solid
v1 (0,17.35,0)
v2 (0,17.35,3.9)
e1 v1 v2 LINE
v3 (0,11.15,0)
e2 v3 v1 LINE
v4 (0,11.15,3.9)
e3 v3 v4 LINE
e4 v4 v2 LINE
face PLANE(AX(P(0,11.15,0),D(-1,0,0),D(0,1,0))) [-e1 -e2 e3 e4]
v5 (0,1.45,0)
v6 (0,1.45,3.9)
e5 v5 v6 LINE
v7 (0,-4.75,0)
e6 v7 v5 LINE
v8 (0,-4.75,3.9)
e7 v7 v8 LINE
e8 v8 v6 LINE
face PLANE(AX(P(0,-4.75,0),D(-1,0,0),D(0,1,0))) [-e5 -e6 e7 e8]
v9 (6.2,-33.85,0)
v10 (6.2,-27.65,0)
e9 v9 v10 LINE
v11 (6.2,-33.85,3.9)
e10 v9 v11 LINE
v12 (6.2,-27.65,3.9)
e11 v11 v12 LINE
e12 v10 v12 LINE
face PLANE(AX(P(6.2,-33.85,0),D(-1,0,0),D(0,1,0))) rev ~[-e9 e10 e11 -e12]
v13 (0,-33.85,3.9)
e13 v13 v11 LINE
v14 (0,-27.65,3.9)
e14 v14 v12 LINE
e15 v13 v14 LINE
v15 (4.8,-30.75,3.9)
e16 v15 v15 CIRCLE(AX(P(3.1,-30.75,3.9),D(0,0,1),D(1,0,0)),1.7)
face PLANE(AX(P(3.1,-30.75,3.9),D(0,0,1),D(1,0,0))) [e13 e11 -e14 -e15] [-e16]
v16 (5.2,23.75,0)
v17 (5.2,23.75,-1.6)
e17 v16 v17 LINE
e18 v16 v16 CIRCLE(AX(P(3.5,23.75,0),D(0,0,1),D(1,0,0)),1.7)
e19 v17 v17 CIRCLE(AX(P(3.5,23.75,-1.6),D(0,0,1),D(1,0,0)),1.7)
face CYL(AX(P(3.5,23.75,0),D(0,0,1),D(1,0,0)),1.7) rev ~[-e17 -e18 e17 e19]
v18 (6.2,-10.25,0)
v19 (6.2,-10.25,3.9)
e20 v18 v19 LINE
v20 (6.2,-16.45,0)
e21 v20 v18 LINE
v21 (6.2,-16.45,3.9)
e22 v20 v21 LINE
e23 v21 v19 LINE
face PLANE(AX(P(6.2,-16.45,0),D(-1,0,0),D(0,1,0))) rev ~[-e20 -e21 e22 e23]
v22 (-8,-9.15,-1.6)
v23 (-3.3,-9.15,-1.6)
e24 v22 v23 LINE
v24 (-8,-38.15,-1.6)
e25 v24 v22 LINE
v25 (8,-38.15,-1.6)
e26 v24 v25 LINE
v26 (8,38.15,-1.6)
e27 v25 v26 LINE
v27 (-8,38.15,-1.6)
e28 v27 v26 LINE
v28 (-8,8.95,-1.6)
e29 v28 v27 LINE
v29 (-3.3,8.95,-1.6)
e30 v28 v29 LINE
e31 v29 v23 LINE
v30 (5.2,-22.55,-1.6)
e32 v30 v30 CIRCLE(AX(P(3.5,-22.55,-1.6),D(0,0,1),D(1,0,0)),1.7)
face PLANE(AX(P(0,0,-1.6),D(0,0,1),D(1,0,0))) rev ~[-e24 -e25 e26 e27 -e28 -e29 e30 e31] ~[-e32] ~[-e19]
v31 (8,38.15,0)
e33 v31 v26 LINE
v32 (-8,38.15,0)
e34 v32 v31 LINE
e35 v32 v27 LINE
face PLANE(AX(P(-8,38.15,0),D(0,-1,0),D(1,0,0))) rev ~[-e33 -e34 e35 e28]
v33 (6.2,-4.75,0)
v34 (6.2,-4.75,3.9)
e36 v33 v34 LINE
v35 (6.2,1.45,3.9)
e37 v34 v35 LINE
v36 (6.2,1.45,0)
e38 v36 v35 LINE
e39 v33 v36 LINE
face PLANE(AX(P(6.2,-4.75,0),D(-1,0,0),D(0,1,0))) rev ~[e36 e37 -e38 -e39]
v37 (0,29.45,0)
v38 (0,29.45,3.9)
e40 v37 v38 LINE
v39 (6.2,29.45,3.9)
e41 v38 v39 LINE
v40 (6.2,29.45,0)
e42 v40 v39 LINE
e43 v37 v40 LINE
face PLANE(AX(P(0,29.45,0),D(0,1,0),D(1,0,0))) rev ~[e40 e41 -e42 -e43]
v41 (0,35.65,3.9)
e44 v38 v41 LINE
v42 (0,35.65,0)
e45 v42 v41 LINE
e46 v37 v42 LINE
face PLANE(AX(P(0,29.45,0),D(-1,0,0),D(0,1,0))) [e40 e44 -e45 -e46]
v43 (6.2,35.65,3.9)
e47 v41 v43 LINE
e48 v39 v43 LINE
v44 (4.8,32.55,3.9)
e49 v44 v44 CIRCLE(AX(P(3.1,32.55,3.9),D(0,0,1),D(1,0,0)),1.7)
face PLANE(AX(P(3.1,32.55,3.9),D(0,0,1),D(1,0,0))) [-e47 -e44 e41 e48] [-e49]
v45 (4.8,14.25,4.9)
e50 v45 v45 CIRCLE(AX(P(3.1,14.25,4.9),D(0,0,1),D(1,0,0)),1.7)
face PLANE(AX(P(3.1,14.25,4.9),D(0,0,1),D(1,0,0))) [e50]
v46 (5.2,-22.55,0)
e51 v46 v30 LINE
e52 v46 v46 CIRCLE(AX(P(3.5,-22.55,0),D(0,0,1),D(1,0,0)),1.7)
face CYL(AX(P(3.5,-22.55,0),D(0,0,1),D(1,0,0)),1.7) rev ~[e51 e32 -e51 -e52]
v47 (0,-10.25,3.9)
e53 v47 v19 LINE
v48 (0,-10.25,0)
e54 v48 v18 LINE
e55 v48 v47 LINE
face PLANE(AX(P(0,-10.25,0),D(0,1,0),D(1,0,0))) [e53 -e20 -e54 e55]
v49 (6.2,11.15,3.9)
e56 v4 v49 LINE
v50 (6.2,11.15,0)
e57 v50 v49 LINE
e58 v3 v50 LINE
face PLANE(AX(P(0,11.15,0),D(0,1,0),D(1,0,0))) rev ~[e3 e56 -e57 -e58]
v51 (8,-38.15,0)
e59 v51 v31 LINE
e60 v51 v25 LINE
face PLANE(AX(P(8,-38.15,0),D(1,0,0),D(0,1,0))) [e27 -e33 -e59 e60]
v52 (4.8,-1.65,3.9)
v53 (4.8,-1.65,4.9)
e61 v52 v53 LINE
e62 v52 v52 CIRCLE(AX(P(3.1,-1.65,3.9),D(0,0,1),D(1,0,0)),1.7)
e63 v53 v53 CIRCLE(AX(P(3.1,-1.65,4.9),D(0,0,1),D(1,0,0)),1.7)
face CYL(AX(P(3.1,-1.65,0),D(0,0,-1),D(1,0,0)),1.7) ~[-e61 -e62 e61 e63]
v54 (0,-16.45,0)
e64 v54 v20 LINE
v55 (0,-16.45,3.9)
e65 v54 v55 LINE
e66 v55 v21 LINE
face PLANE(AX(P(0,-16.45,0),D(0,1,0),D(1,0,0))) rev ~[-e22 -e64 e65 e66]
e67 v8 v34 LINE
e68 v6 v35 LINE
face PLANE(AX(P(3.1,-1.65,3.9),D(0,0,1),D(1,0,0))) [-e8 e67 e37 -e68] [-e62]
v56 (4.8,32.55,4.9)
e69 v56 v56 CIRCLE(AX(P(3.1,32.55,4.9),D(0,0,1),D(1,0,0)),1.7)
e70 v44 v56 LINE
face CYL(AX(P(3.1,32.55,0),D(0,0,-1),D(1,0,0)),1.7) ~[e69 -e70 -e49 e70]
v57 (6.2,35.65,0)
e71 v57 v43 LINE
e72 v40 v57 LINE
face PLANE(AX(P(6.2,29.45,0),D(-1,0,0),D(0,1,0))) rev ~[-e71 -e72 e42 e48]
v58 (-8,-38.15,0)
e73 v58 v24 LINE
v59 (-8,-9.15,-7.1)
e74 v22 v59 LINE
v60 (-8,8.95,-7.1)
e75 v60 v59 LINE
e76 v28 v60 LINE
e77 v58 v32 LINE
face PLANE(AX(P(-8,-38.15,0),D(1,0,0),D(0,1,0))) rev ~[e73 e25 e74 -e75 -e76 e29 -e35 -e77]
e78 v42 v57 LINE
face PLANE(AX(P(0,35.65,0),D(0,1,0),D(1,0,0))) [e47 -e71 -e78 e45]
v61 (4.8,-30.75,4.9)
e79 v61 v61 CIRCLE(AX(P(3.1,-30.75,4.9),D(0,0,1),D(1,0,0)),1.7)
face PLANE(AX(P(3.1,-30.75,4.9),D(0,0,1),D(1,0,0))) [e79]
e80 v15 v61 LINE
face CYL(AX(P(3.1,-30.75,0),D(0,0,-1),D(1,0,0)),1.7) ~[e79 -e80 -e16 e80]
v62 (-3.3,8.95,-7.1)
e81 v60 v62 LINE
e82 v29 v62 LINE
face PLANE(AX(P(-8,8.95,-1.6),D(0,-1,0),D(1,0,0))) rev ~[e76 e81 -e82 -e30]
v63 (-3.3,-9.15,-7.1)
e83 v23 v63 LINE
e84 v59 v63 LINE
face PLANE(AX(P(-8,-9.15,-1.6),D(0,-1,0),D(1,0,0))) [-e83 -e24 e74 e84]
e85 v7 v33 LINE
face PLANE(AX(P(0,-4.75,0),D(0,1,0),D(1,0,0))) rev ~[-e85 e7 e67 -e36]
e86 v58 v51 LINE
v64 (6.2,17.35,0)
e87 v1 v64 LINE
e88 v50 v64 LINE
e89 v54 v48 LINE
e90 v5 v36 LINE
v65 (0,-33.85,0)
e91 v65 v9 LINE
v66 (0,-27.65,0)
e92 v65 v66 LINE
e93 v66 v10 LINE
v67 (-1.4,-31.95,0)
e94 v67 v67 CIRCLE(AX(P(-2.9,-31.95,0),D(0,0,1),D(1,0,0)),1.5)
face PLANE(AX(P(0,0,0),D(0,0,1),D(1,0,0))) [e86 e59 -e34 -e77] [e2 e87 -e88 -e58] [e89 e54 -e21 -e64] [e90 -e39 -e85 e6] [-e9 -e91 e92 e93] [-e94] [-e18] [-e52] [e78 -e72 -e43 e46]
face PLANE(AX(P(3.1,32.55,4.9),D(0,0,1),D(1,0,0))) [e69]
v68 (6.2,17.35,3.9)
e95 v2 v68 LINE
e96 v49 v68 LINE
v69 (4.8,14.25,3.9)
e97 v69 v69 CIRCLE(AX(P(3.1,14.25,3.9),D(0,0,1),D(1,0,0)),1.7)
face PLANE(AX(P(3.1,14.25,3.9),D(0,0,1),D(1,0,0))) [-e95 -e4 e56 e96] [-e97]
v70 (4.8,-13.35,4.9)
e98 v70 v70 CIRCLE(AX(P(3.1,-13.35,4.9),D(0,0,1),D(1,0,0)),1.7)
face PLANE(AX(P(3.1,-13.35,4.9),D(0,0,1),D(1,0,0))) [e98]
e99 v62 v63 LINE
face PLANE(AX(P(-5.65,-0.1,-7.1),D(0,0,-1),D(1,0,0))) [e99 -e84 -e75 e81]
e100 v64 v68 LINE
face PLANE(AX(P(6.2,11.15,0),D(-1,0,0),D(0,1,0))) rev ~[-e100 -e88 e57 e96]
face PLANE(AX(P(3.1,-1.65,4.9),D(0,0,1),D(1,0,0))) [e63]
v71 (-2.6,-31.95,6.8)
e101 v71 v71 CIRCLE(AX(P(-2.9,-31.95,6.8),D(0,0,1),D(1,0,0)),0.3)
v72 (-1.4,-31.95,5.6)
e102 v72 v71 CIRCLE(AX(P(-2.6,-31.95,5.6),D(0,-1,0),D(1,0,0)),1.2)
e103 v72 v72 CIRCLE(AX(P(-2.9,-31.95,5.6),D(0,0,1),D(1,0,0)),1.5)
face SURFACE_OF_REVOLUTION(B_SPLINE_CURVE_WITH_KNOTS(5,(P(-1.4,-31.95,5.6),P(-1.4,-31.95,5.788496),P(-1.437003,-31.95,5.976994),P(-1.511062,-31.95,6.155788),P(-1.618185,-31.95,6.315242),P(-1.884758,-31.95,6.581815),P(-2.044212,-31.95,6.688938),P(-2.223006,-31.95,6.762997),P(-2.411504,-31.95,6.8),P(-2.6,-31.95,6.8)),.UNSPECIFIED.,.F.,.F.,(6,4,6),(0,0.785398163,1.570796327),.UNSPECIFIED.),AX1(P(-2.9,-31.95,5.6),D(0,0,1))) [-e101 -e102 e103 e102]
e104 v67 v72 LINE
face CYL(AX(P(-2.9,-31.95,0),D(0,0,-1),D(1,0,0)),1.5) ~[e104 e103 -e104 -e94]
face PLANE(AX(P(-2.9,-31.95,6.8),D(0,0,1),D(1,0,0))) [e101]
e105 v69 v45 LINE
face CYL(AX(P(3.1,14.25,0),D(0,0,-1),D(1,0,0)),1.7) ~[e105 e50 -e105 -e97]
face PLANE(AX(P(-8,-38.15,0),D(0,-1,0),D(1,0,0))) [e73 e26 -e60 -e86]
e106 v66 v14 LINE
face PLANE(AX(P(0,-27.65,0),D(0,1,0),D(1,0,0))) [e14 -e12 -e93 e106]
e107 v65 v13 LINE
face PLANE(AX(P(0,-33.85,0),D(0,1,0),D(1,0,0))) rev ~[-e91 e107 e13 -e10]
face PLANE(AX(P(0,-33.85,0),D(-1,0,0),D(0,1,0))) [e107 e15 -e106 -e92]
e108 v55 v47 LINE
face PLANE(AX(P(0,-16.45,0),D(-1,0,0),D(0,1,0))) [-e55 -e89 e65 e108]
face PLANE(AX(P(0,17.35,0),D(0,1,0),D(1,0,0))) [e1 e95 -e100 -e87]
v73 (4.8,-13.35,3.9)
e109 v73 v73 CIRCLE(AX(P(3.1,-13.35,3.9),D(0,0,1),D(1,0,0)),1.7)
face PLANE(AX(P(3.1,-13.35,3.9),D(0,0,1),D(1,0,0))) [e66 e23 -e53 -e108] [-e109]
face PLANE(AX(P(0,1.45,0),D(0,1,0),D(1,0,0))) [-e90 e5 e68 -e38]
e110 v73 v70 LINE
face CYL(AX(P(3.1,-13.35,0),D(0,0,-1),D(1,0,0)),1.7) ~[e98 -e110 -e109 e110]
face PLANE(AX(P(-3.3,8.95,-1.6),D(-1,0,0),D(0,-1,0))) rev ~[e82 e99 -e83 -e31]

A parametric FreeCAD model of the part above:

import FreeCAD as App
import Part
import Sketcher

V = App.Vector


def edges_at(feature, points):
    """Names of the edges that pass closest to the given points."""
    edges = feature.Shape.Edges
    near = lambda p: min(range(len(edges)), key=lambda i: edges[i].distToShape(Part.Vertex(*p))[0])
    return sorted({f"Edge{near(p) + 1}" for p in points})

doc = App.newDocument("Part")
params = doc.addObject("Spreadsheet::Sheet", "Params")
for row, (alias, value) in enumerate([
    ("sketch1_diameter", "3.4 mm"),
    ("sketch1_width", "16 mm"),
    ("sketch1_height", "76.3 mm"),
    ("pad1_length", "1.6 mm"),
    ("sketch2_diameter", "3.4 mm"),
    ("sketch2_width", "6.2 mm"),
    ("pad2_length", "3.9 mm"),
    ("sketch3_diameter", "3.4 mm"),
    ("pad3_length", "4.9 mm"),
    ("sketch4_diameter", "3 mm"),
    ("pad4_length", "6.8 mm"),
    ("fillet_radius", "1.2 mm"),
    ("sketch5_width", "4.7 mm"),
    ("sketch5_height", "18.1 mm"),
    ("pad5_length", "5.5 mm"),
], start=1):
    params.set(f"A{row}", alias)
    params.set(f"B{row}", "=" + value)
    params.setAlias(f"B{row}", alias)

body = doc.addObject("PartDesign::Body", "Body")

sketch1 = body.newObject("Sketcher::SketchObject", "Sketch")
sketch1.AttachmentSupport = (doc.getObject("XY_Plane"), [""])
sketch1.MapMode = "FlatFace"
sketch1.addGeometry([
    Part.LineSegment(V(-8, 38.15, 0), V(-8, -38.15, 0)),
    Part.LineSegment(V(-8, -38.15, 0), V(8, -38.15, 0)),
    Part.LineSegment(V(8, -38.15, 0), V(8, 38.15, 0)),
    Part.LineSegment(V(8, 38.15, 0), V(-8, 38.15, 0)),
    Part.Circle(V(3.5, -22.55, 0), V(0, 0, 1), 1.7),
    Part.Circle(V(3.5, 23.75, 0), V(0, 0, 1), 1.7),
], False)
sketch1.addConstraint([
    Sketcher.Constraint("Coincident", 0, 2, 1, 1),
    Sketcher.Constraint("Coincident", 1, 2, 2, 1),
    Sketcher.Constraint("Coincident", 2, 2, 3, 1),
    Sketcher.Constraint("Coincident", 3, 2, 0, 1),
    Sketcher.Constraint("Vertical", 0),
    Sketcher.Constraint("Horizontal", 1),
    Sketcher.Constraint("Vertical", 2),
    Sketcher.Constraint("Horizontal", 3),
    Sketcher.Constraint("Equal", 4, 5),
    Sketcher.Constraint("Symmetric", 0, 2, 2, 2, -1, 1),
    Sketcher.Constraint("Vertical", 4, 3, 5, 3),
    Sketcher.Constraint("Diameter", 4, 3.4),
    Sketcher.Constraint("DistanceX", 1, 1, 1, 2, 16.0),
    Sketcher.Constraint("DistanceY", 0, 2, 0, 1, 76.3),
    Sketcher.Constraint("DistanceX", -1, 1, 4, 3, 3.5),
    Sketcher.Constraint("DistanceY", 4, 3, 5, 3, 46.3),
    Sketcher.Constraint("DistanceY", 0, 2, 4, 3, 15.6),
])
sketch1.setExpression("Constraints[11]", "Params.sketch1_diameter")
sketch1.setExpression("Constraints[12]", "Params.sketch1_width")
sketch1.setExpression("Constraints[13]", "Params.sketch1_height")
pad1 = body.newObject("PartDesign::Pad", "Pad")
pad1.Profile = sketch1
pad1.setExpression("Length", "Params.pad1_length")
pad1.Reversed = True

sketch2 = body.newObject("Sketcher::SketchObject", "Sketch001")
sketch2.AttachmentSupport = (doc.getObject("XY_Plane"), [""])
sketch2.MapMode = "FlatFace"
sketch2.addGeometry([
    Part.LineSegment(V(0, -27.65, 0), V(0, -33.85, 0)),
    Part.LineSegment(V(0, -33.85, 0), V(6.2, -33.85, 0)),
    Part.LineSegment(V(6.2, -33.85, 0), V(6.2, -27.65, 0)),
    Part.LineSegment(V(6.2, -27.65, 0), V(0, -27.65, 0)),
    Part.Circle(V(3.1, -30.75, 0), V(0, 0, 1), 1.7),
    Part.LineSegment(V(0, -10.25, 0), V(0, -16.45, 0)),
    Part.LineSegment(V(0, -16.45, 0), V(6.2, -16.45, 0)),
    Part.LineSegment(V(6.2, -16.45, 0), V(6.2, -10.25, 0)),
    Part.LineSegment(V(6.2, -10.25, 0), V(0, -10.25, 0)),
    Part.Circle(V(3.1, -13.35, 0), V(0, 0, 1), 1.7),
    Part.LineSegment(V(0, 1.45, 0), V(0, -4.75, 0)),
    Part.LineSegment(V(0, -4.75, 0), V(6.2, -4.75, 0)),
    Part.LineSegment(V(6.2, -4.75, 0), V(6.2, 1.45, 0)),
    Part.LineSegment(V(6.2, 1.45, 0), V(0, 1.45, 0)),
    Part.Circle(V(3.1, -1.65, 0), V(0, 0, 1), 1.7),
    Part.LineSegment(V(0, 17.35, 0), V(0, 11.15, 0)),
    Part.LineSegment(V(0, 11.15, 0), V(6.2, 11.15, 0)),
    Part.LineSegment(V(6.2, 11.15, 0), V(6.2, 17.35, 0)),
    Part.LineSegment(V(6.2, 17.35, 0), V(0, 17.35, 0)),
    Part.Circle(V(3.1, 14.25, 0), V(0, 0, 1), 1.7),
    Part.LineSegment(V(0, 35.65, 0), V(0, 29.45, 0)),
    Part.LineSegment(V(0, 29.45, 0), V(6.2, 29.45, 0)),
    Part.LineSegment(V(6.2, 29.45, 0), V(6.2, 35.65, 0)),
    Part.LineSegment(V(6.2, 35.65, 0), V(0, 35.65, 0)),
    Part.Circle(V(3.1, 32.55, 0), V(0, 0, 1), 1.7),
], False)
sketch2.addConstraint([
    Sketcher.Constraint("Coincident", 0, 2, 1, 1),
    Sketcher.Constraint("Coincident", 1, 2, 2, 1),
    Sketcher.Constraint("Coincident", 2, 2, 3, 1),
    Sketcher.Constraint("Coincident", 3, 2, 0, 1),
    Sketcher.Constraint("Coincident", 5, 2, 6, 1),
    Sketcher.Constraint("Coincident", 6, 2, 7, 1),
    Sketcher.Constraint("Coincident", 7, 2, 8, 1),
    Sketcher.Constraint("Coincident", 8, 2, 5, 1),
    Sketcher.Constraint("Coincident", 10, 2, 11, 1),
    Sketcher.Constraint("Coincident", 11, 2, 12, 1),
    Sketcher.Constraint("Coincident", 12, 2, 13, 1),
    Sketcher.Constraint("Coincident", 13, 2, 10, 1),
    Sketcher.Constraint("Coincident", 15, 2, 16, 1),
    Sketcher.Constraint("Coincident", 16, 2, 17, 1),
    Sketcher.Constraint("Coincident", 17, 2, 18, 1),
    Sketcher.Constraint("Coincident", 18, 2, 15, 1),
    Sketcher.Constraint("Coincident", 20, 2, 21, 1),
    Sketcher.Constraint("Coincident", 21, 2, 22, 1),
    Sketcher.Constraint("Coincident", 22, 2, 23, 1),
    Sketcher.Constraint("Coincident", 23, 2, 20, 1),
    Sketcher.Constraint("Vertical", 0),
    Sketcher.Constraint("Horizontal", 1),
    Sketcher.Constraint("Vertical", 2),
    Sketcher.Constraint("Horizontal", 3),
    Sketcher.Constraint("Vertical", 5),
    Sketcher.Constraint("Horizontal", 6),
    Sketcher.Constraint("Vertical", 7),
    Sketcher.Constraint("Horizontal", 8),
    Sketcher.Constraint("Vertical", 10),
    Sketcher.Constraint("Horizontal", 11),
    Sketcher.Constraint("Vertical", 12),
    Sketcher.Constraint("Horizontal", 13),
    Sketcher.Constraint("Vertical", 15),
    Sketcher.Constraint("Horizontal", 16),
    Sketcher.Constraint("Vertical", 17),
    Sketcher.Constraint("Horizontal", 18),
    Sketcher.Constraint("Vertical", 20),
    Sketcher.Constraint("Horizontal", 21),
    Sketcher.Constraint("Vertical", 22),
    Sketcher.Constraint("Horizontal", 23),
    Sketcher.Constraint("Equal", 4, 9),
    Sketcher.Constraint("Equal", 9, 14),
    Sketcher.Constraint("Equal", 14, 19),
    Sketcher.Constraint("Equal", 19, 24),
    Sketcher.Constraint("PointOnObject", 0, 2, -2),
    Sketcher.Constraint("PointOnObject", 5, 2, -2),
    Sketcher.Constraint("PointOnObject", 10, 2, -2),
    Sketcher.Constraint("PointOnObject", 15, 2, -2),
    Sketcher.Constraint("PointOnObject", 20, 2, -2),
    Sketcher.Constraint("Vertical", 4, 3, 9, 3),
    Sketcher.Constraint("Vertical", 9, 3, 14, 3),
    Sketcher.Constraint("Vertical", 14, 3, 19, 3),
    Sketcher.Constraint("Vertical", 19, 3, 24, 3),
    Sketcher.Constraint("Vertical", 2, 2, 6, 2),
    Sketcher.Constraint("Vertical", 7, 2, 11, 2),
    Sketcher.Constraint("Vertical", 12, 2, 16, 2),
    Sketcher.Constraint("Vertical", 17, 2, 21, 2),
    Sketcher.Constraint("Equal", 23, 0),
    Sketcher.Constraint("Equal", 2, 5),
    Sketcher.Constraint("Equal", 7, 10),
    Sketcher.Constraint("Equal", 12, 15),
    Sketcher.Constraint("Equal", 17, 20),
    Sketcher.Constraint("Diameter", 4, 3.4),
    Sketcher.Constraint("DistanceX", 1, 1, 1, 2, 6.2),
    Sketcher.Constraint("DistanceY", 4, 3, 19, 3, 45.0),
    Sketcher.Constraint("DistanceY", 2, 2, 14, 3, 26.0),
    Sketcher.Constraint("DistanceX", -1, 1, 4, 3, 3.1),
    Sketcher.Constraint("DistanceY", 4, 3, 9, 3, 17.4),
    Sketcher.Constraint("DistanceY", 9, 3, 14, 3, 11.7),
    Sketcher.Constraint("DistanceY", 19, 3, 24, 3, 18.3),
    Sketcher.Constraint("DistanceY", 5, 2, 9, 3, 3.1),
    Sketcher.Constraint("DistanceY", 10, 2, 14, 3, 3.1),
    Sketcher.Constraint("DistanceY", 15, 2, 19, 3, 3.1),
    Sketcher.Constraint("DistanceY", 20, 2, 24, 3, 3.1),
    Sketcher.Constraint("DistanceY", 4, 3, -1, 1, 30.75),
])
sketch2.setExpression("Constraints[62]", "Params.sketch2_diameter")
sketch2.setExpression("Constraints[63]", "Params.sketch2_width")
pad2 = body.newObject("PartDesign::Pad", "Pad001")
pad2.Profile = sketch2
pad2.setExpression("Length", "Params.pad2_length")

sketch3 = body.newObject("Sketcher::SketchObject", "Sketch002")
sketch3.AttachmentSupport = (doc.getObject("XY_Plane"), [""])
sketch3.MapMode = "FlatFace"
sketch3.addGeometry([
    Part.Circle(V(3.1, 32.55, 0), V(0, 0, 1), 1.7),
    Part.Circle(V(3.1, 14.25, 0), V(0, 0, 1), 1.7),
    Part.Circle(V(3.1, -1.65, 0), V(0, 0, 1), 1.7),
    Part.Circle(V(3.1, -13.35, 0), V(0, 0, 1), 1.7),
    Part.Circle(V(3.1, -30.75, 0), V(0, 0, 1), 1.7),
], False)
sketch3.addConstraint([
    Sketcher.Constraint("Equal", 0, 1),
    Sketcher.Constraint("Equal", 1, 2),
    Sketcher.Constraint("Equal", 2, 3),
    Sketcher.Constraint("Equal", 3, 4),
    Sketcher.Constraint("Vertical", 0, 3, 1, 3),
    Sketcher.Constraint("Vertical", 1, 3, 2, 3),
    Sketcher.Constraint("Vertical", 2, 3, 3, 3),
    Sketcher.Constraint("Vertical", 3, 3, 4, 3),
    Sketcher.Constraint("Diameter", 0, 3.4),
    Sketcher.Constraint("DistanceY", 4, 3, 1, 3, 45.0),
    Sketcher.Constraint("DistanceX", -1, 1, 0, 3, 3.1),
    Sketcher.Constraint("DistanceY", 1, 3, 0, 3, 18.3),
    Sketcher.Constraint("DistanceY", 2, 3, 1, 3, 15.9),
    Sketcher.Constraint("DistanceY", 3, 3, 2, 3, 11.7),
    Sketcher.Constraint("DistanceY", -1, 1, 0, 3, 32.55),
])
sketch3.setExpression("Constraints[8]", "Params.sketch3_diameter")
pad3 = body.newObject("PartDesign::Pad", "Pad002")
pad3.Profile = sketch3
pad3.setExpression("Length", "Params.pad3_length")

sketch4 = body.newObject("Sketcher::SketchObject", "Sketch003")
sketch4.AttachmentSupport = (doc.getObject("XY_Plane"), [""])
sketch4.MapMode = "FlatFace"
sketch4.addGeometry(Part.Circle(V(-2.9, -31.95, 0), V(0, 0, 1), 1.5), False)
sketch4.addConstraint([
    Sketcher.Constraint("Diameter", 0, 3.0),
    Sketcher.Constraint("DistanceX", 0, 3, -1, 1, 2.9),
    Sketcher.Constraint("DistanceY", 0, 3, -1, 1, 31.95),
])
sketch4.setExpression("Constraints[0]", "Params.sketch4_diameter")
pad4 = body.newObject("PartDesign::Pad", "Pad003")
pad4.Profile = sketch4
pad4.setExpression("Length", "Params.pad4_length")
doc.recompute()

fillet = body.newObject("PartDesign::Fillet", "Fillet")
fillet.Base = (pad4, edges_at(pad4, [(-4.4, -31.95, 6.8)]))
fillet.setExpression("Radius", "Params.fillet_radius")

sketch5 = body.newObject("Sketcher::SketchObject", "Sketch004")
sketch5.AttachmentSupport = (doc.getObject("XY_Plane"), [""])
sketch5.MapMode = "FlatFace"
sketch5.AttachmentOffset = App.Placement(V(0, 0, -1.6), App.Rotation())
sketch5.addGeometry([
    Part.LineSegment(V(-8, -9.15, 0), V(-8, 8.95, 0)),
    Part.LineSegment(V(-8, 8.95, 0), V(-3.3, 8.95, 0)),
    Part.LineSegment(V(-3.3, 8.95, 0), V(-3.3, -9.15, 0)),
    Part.LineSegment(V(-3.3, -9.15, 0), V(-8, -9.15, 0)),
], False)
sketch5.addConstraint([
    Sketcher.Constraint("Coincident", 0, 2, 1, 1),
    Sketcher.Constraint("Coincident", 1, 2, 2, 1),
    Sketcher.Constraint("Coincident", 2, 2, 3, 1),
    Sketcher.Constraint("Coincident", 3, 2, 0, 1),
    Sketcher.Constraint("Vertical", 0),
    Sketcher.Constraint("Horizontal", 1),
    Sketcher.Constraint("Vertical", 2),
    Sketcher.Constraint("Horizontal", 3),
    Sketcher.Constraint("DistanceX", 1, 1, 1, 2, 4.7),
    Sketcher.Constraint("DistanceY", 0, 1, 0, 2, 18.1),
    Sketcher.Constraint("DistanceX", 0, 2, -1, 1, 8.0),
    Sketcher.Constraint("DistanceY", -1, 1, 0, 2, 8.95),
])
sketch5.setExpression("Constraints[8]", "Params.sketch5_width")
sketch5.setExpression("Constraints[9]", "Params.sketch5_height")
pad5 = body.newObject("PartDesign::Pad", "Pad004")
pad5.Profile = sketch5
pad5.setExpression("Length", "Params.pad5_length")
pad5.Reversed = True

doc.recompute()
